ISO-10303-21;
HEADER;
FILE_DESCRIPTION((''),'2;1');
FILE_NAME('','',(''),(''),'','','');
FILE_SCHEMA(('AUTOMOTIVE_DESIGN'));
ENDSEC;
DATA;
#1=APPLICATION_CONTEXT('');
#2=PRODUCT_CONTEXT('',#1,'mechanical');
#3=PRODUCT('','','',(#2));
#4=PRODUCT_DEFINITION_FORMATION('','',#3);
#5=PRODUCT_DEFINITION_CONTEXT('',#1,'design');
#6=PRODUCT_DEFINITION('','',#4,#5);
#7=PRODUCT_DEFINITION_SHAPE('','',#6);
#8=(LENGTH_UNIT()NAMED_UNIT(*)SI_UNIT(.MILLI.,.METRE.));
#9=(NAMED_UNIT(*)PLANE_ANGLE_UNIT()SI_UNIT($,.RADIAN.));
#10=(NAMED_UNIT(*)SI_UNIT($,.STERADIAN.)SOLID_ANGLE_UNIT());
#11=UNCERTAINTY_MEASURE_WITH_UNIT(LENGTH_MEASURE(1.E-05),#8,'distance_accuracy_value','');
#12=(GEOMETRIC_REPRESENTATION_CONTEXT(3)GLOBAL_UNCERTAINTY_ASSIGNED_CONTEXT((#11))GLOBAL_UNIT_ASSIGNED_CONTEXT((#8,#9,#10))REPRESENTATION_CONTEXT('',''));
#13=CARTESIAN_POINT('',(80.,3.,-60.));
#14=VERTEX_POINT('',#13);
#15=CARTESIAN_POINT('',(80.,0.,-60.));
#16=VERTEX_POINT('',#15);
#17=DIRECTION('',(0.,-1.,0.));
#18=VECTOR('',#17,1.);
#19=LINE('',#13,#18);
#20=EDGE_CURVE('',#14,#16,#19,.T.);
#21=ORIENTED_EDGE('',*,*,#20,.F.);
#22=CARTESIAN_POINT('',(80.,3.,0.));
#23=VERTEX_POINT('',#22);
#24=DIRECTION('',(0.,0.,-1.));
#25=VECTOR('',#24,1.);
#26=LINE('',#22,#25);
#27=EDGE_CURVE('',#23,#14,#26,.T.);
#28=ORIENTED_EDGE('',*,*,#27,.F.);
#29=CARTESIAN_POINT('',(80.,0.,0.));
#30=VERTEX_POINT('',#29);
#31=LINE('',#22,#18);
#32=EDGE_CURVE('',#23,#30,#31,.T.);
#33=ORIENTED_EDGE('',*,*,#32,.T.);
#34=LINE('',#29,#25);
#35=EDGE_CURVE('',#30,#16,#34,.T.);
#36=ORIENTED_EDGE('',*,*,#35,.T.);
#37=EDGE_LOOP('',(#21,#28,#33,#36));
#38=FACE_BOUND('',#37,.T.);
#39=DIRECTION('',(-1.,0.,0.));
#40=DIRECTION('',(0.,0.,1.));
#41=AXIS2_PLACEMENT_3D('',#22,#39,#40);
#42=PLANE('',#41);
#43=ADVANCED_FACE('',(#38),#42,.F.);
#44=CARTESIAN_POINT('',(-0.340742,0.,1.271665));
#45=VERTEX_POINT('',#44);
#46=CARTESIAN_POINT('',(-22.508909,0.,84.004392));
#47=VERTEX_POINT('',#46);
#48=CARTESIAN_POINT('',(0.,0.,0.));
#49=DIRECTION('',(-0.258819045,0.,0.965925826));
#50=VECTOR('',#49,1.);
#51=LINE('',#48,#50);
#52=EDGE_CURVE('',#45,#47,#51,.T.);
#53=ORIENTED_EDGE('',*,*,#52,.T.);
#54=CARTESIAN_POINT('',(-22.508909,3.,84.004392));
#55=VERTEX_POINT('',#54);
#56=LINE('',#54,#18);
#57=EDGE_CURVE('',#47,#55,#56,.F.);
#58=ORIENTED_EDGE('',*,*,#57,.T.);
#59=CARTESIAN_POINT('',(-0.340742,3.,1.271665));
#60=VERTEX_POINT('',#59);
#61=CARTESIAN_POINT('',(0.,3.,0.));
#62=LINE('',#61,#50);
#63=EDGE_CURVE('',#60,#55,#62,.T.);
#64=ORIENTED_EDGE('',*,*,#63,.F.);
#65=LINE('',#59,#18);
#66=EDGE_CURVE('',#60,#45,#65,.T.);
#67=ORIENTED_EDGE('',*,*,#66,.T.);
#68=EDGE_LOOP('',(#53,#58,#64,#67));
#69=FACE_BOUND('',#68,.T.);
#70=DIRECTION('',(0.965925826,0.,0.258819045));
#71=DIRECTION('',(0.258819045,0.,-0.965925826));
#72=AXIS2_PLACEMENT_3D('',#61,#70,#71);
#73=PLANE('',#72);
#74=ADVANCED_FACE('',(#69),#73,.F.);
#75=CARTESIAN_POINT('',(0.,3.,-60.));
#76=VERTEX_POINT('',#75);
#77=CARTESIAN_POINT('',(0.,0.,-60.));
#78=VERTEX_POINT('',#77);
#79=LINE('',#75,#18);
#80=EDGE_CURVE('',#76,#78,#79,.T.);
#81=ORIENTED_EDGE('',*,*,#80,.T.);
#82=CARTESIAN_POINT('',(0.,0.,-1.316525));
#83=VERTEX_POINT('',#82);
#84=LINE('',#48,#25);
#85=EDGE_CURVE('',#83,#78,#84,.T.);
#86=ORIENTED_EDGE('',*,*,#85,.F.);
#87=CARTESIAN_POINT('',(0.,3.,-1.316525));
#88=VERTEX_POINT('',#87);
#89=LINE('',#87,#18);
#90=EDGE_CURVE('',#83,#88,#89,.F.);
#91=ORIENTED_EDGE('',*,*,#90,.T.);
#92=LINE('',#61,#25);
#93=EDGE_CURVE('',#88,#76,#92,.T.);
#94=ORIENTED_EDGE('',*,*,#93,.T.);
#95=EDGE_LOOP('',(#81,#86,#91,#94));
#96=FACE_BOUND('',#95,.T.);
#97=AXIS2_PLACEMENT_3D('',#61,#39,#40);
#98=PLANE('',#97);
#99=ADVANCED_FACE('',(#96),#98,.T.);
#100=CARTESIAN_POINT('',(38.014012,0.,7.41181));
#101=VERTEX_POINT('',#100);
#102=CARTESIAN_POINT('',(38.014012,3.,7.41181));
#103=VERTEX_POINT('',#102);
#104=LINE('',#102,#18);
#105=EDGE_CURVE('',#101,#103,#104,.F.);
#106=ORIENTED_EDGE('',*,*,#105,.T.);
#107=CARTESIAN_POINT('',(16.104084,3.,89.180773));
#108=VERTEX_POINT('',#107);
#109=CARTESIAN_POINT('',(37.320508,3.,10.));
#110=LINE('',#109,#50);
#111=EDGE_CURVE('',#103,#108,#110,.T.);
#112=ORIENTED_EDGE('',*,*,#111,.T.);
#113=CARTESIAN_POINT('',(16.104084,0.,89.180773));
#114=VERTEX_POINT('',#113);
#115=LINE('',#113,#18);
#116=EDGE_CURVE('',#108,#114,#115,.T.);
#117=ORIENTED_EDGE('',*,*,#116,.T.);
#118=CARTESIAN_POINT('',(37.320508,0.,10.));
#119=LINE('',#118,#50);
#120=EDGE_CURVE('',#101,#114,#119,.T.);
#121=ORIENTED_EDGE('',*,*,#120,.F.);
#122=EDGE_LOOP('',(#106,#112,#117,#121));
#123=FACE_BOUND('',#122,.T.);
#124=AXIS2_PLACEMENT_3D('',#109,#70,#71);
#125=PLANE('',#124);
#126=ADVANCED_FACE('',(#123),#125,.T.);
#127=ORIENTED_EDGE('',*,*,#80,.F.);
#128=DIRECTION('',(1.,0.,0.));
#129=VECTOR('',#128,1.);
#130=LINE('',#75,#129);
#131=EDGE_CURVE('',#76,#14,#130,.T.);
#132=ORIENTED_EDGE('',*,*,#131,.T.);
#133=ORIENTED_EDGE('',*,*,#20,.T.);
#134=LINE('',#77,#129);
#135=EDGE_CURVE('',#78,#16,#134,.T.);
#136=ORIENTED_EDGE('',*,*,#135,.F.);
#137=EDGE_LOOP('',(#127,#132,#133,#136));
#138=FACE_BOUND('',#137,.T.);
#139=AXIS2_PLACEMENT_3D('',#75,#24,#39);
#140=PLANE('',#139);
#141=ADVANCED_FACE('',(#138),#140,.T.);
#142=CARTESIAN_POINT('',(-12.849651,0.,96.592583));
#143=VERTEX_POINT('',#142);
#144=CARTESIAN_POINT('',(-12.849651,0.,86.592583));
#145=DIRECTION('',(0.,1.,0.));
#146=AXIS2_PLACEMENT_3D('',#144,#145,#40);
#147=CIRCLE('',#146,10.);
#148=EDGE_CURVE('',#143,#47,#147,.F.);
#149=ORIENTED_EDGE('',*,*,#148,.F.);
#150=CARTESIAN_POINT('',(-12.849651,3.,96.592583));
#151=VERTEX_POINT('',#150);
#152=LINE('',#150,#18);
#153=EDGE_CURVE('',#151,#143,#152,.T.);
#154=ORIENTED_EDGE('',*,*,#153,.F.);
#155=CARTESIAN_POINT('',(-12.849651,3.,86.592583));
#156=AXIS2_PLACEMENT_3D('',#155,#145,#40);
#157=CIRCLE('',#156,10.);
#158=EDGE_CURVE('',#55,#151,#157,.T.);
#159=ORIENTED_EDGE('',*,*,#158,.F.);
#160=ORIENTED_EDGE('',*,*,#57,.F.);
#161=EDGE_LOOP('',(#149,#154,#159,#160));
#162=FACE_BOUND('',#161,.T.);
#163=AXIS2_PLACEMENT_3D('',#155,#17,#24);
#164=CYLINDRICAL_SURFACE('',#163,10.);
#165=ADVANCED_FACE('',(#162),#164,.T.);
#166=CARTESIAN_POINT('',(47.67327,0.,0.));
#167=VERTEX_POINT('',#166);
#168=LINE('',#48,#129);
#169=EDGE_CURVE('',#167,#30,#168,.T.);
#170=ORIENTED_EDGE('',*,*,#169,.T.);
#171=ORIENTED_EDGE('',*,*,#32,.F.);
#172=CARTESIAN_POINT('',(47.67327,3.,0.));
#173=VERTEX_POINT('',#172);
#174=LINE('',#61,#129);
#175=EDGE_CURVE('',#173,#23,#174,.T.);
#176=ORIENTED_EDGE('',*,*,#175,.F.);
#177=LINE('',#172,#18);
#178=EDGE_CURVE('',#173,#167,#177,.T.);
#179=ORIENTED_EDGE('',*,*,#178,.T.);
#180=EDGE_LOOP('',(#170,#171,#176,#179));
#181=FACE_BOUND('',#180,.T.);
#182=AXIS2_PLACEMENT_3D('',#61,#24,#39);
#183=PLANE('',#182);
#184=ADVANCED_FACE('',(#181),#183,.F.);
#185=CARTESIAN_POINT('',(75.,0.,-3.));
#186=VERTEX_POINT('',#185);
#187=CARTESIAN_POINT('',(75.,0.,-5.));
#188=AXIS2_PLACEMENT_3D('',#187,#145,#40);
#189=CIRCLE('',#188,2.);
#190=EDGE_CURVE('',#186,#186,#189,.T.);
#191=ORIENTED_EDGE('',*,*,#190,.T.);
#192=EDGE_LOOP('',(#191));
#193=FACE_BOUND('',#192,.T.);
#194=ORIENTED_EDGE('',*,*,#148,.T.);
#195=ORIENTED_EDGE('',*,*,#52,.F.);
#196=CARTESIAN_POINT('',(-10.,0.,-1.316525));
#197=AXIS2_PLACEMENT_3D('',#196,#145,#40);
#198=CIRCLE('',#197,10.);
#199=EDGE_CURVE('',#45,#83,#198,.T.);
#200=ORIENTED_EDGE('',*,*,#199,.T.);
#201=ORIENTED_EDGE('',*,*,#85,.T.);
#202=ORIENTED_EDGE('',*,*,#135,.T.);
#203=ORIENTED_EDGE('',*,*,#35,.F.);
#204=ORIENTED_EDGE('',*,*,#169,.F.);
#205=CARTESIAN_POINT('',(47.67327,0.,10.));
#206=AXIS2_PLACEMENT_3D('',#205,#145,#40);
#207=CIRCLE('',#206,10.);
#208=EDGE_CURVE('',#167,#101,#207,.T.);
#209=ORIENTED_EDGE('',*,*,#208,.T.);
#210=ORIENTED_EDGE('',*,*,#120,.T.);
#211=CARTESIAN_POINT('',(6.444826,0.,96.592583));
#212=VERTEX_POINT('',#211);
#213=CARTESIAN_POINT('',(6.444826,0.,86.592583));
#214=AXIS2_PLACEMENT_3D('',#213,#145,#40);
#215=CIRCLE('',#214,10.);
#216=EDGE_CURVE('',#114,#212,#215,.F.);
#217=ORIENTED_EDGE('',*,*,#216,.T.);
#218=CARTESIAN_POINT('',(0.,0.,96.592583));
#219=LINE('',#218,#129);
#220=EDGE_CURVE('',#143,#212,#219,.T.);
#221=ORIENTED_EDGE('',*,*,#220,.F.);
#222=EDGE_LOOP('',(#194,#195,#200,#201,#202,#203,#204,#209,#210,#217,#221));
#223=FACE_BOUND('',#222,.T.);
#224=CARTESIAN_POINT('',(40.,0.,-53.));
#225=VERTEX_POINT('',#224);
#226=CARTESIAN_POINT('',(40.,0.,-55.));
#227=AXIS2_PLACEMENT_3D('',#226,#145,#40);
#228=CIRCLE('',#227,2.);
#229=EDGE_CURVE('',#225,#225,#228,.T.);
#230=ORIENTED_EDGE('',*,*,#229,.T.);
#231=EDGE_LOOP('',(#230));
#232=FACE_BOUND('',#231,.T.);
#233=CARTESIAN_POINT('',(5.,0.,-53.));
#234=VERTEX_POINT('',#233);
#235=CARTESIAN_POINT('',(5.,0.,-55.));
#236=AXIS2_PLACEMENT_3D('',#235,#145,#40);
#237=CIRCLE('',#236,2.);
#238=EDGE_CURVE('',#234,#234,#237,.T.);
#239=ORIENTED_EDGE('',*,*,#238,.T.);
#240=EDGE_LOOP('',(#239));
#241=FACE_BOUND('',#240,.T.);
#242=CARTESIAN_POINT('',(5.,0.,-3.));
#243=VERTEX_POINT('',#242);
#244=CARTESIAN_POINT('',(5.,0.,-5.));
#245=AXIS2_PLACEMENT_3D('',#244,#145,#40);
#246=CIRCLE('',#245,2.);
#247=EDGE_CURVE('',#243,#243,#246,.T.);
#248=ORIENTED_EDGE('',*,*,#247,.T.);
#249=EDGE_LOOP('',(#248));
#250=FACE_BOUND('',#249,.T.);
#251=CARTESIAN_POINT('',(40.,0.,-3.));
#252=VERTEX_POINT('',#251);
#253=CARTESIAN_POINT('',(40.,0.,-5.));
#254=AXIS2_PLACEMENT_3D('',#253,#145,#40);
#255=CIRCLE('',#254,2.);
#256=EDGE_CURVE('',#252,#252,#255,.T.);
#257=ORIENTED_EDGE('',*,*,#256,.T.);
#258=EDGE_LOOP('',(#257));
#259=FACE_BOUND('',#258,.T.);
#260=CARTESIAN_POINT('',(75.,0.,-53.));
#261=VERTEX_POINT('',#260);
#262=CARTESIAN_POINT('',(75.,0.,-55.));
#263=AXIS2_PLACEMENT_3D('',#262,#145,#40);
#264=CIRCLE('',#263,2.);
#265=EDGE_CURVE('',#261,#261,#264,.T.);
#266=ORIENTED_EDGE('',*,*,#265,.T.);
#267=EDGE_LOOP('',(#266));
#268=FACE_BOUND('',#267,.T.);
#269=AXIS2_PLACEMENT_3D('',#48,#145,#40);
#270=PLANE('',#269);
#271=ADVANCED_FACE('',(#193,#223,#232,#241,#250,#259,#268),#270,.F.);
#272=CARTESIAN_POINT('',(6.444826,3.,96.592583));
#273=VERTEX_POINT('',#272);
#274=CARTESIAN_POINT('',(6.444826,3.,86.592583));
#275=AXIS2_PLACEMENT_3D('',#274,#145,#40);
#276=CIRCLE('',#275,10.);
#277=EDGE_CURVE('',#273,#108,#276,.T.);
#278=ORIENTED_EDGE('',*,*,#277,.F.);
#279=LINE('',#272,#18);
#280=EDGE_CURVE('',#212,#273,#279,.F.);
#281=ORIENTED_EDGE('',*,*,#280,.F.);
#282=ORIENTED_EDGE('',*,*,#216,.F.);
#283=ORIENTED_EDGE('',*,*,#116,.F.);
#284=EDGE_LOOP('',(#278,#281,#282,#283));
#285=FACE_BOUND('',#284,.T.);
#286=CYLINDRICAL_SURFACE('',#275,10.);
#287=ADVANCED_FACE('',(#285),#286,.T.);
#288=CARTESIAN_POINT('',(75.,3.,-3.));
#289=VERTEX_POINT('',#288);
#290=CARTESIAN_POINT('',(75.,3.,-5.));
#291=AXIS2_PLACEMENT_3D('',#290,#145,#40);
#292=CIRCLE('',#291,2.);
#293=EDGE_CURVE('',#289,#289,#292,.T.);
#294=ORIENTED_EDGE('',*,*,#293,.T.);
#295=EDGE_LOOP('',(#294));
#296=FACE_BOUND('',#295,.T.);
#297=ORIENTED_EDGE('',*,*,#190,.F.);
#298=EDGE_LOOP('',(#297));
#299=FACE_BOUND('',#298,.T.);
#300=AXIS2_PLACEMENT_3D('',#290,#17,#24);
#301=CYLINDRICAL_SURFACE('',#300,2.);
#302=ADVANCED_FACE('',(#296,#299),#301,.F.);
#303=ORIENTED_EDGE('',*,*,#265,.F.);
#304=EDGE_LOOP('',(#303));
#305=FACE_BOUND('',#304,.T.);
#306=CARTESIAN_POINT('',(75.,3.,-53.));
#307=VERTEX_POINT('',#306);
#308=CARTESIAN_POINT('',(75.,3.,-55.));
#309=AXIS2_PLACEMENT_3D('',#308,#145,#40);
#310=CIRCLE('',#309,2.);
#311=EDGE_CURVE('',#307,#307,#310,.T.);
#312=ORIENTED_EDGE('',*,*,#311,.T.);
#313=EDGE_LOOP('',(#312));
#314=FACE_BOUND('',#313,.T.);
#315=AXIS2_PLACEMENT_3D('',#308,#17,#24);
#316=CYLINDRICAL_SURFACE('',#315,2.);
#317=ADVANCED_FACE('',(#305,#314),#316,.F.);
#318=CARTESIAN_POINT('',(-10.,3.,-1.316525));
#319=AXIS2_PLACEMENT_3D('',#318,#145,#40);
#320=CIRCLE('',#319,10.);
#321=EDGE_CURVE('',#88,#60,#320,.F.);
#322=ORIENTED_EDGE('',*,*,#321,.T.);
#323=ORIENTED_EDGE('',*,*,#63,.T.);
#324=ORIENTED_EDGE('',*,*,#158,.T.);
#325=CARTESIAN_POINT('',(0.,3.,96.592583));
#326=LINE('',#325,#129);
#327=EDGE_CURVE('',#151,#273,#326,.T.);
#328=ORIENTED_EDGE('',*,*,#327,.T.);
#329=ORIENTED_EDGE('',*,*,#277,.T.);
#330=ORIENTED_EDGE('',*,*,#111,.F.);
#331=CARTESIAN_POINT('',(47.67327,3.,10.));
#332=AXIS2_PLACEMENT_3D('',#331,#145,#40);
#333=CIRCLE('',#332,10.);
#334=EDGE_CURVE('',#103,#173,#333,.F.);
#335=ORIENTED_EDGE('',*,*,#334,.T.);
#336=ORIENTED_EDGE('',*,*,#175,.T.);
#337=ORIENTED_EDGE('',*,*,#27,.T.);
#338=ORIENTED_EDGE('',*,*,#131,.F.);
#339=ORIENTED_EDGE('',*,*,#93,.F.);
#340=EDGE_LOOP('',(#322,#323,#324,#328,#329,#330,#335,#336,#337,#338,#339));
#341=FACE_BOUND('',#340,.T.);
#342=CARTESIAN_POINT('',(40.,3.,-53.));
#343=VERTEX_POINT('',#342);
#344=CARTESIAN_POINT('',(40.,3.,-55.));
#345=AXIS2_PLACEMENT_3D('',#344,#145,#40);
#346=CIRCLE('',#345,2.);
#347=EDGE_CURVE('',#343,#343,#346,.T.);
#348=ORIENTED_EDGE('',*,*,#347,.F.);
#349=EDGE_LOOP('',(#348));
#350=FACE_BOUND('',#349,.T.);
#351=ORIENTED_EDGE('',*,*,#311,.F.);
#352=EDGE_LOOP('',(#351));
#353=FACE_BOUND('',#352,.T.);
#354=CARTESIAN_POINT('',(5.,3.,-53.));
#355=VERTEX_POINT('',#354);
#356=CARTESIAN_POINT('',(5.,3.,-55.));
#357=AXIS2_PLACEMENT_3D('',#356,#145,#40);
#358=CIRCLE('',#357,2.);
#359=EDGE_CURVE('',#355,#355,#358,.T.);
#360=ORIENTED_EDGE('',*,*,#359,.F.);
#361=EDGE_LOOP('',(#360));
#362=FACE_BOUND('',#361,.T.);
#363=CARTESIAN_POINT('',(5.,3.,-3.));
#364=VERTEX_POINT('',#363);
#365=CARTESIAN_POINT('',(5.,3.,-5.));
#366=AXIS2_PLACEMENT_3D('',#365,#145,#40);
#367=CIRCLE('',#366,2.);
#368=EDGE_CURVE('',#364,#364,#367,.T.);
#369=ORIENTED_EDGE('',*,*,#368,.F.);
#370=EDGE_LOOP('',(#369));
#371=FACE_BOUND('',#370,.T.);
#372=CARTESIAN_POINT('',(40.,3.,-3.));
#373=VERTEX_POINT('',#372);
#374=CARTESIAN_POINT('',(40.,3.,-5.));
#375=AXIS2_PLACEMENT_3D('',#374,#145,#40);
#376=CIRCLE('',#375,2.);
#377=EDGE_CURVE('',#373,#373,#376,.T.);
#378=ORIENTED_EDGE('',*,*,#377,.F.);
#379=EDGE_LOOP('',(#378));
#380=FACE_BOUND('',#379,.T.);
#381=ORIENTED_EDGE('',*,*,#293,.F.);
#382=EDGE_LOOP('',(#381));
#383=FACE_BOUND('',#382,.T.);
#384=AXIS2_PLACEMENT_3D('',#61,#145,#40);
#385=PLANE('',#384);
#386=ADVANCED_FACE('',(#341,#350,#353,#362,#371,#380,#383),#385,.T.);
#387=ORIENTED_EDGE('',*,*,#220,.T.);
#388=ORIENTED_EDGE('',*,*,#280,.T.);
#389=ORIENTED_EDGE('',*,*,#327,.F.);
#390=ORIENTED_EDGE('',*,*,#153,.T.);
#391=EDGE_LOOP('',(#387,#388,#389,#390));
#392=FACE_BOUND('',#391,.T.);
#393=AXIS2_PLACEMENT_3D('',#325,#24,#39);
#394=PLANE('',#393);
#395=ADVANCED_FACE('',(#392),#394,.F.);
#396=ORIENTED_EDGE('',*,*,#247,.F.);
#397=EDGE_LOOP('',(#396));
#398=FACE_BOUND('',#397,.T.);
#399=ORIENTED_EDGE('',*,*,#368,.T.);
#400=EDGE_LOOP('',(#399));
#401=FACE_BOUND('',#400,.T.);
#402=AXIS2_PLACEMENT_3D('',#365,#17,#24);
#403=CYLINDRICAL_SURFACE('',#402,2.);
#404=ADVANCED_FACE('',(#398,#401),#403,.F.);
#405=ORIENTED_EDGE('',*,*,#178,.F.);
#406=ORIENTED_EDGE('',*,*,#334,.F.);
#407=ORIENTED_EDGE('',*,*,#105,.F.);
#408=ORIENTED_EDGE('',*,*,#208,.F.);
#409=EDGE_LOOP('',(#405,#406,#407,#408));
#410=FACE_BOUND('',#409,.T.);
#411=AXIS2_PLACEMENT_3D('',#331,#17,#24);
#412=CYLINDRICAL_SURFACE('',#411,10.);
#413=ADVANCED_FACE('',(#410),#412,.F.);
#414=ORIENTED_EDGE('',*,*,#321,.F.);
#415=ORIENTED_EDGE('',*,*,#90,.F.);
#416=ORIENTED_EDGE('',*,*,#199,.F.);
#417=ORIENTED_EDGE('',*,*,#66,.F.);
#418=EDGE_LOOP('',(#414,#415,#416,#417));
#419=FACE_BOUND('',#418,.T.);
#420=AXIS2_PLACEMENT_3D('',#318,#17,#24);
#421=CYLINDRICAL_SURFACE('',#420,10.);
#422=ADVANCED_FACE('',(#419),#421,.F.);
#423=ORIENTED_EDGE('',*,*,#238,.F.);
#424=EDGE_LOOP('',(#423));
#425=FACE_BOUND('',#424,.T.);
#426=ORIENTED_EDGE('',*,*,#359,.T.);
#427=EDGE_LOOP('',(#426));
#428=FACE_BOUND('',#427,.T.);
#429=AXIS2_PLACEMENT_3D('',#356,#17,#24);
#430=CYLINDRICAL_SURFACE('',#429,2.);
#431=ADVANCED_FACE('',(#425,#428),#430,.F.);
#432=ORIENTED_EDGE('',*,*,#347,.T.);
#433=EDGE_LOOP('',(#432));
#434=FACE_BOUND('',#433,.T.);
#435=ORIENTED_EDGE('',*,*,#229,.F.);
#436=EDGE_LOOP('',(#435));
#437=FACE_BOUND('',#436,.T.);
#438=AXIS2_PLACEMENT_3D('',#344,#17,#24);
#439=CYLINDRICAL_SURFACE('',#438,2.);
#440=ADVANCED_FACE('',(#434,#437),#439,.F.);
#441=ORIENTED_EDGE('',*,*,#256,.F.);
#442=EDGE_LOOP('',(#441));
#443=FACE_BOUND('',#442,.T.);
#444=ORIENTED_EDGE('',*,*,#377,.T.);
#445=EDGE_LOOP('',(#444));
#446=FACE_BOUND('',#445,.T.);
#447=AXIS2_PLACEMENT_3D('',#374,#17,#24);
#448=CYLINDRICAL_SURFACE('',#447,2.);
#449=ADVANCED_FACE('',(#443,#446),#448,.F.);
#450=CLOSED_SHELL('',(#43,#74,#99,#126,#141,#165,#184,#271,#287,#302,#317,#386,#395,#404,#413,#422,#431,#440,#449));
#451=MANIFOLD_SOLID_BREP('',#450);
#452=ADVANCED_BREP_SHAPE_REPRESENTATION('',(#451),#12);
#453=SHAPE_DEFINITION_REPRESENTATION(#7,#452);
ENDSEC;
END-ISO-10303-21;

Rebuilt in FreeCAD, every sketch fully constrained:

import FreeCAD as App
import Part
import Sketcher

V = App.Vector
Q = App.Units.Quantity


def edges_at(feature, points):
    """Names of the edges that pass closest to the given points."""
    edges = feature.Shape.Edges
    near = lambda p: min(range(len(edges)), key=lambda i: edges[i].distToShape(Part.Vertex(*p))[0])
    return sorted({f"Edge{near(p) + 1}" for p in points})

doc = App.newDocument("Part")
body = doc.addObject("PartDesign::Body", "Body")

# Sketch on XZ plane
sketch1 = body.newObject("Sketcher::SketchObject", "Sketch")
sketch1.AttachmentSupport = (doc.getObject("XZ_Plane"), [""])
sketch1.MapMode = "FlatFace"
sketch1.addGeometry(Part.LineSegment(V(0, -60, 0), V(0, 0, 0)), False)
sketch1.addGeometry(Part.LineSegment(V(0, 0, 0), V(-25.9, 96.6, 0)), False)
sketch1.addGeometry(Part.LineSegment(V(-25.9, 96.6, 0), V(14.1, 96.6, 0)), False)
sketch1.addGeometry(Part.LineSegment(V(14.1, 96.6, 0), V(40, 0, 0)), False)
sketch1.addGeometry(Part.LineSegment(V(40, 0, 0), V(80, 0, 0)), False)
sketch1.addGeometry(Part.LineSegment(V(80, 0, 0), V(80, -60, 0)), False)
sketch1.addGeometry(Part.LineSegment(V(80, -60, 0), V(0, -60, 0)), False)
sketch1.addGeometry(Part.Circle(V(5, -5, 0), V(0, 0, 1), 2), False)
sketch1.addGeometry(Part.Circle(V(40, -5, 0), V(0, 0, 1), 2), False)
sketch1.addGeometry(Part.Circle(V(75, -5, 0), V(0, 0, 1), 2), False)
sketch1.addGeometry(Part.Circle(V(5, -55, 0), V(0, 0, 1), 2), False)
sketch1.addGeometry(Part.Circle(V(40, -55, 0), V(0, 0, 1), 2), False)
sketch1.addGeometry(Part.Circle(V(75, -55, 0), V(0, 0, 1), 2), False)
sketch1.addConstraint(Sketcher.Constraint("Coincident", 0, 2, 1, 1))
sketch1.addConstraint(Sketcher.Constraint("Coincident", 1, 2, 2, 1))
sketch1.addConstraint(Sketcher.Constraint("Coincident", 2, 2, 3, 1))
sketch1.addConstraint(Sketcher.Constraint("Coincident", 3, 2, 4, 1))
sketch1.addConstraint(Sketcher.Constraint("Coincident", 4, 2, 5, 1))
sketch1.addConstraint(Sketcher.Constraint("Coincident", 5, 2, 6, 1))
sketch1.addConstraint(Sketcher.Constraint("Coincident", 6, 2, 0, 1))
sketch1.addConstraint(Sketcher.Constraint("Vertical", 0))
sketch1.addConstraint(Sketcher.Constraint("Horizontal", 2))
sketch1.addConstraint(Sketcher.Constraint("Horizontal", 4))
sketch1.addConstraint(Sketcher.Constraint("Vertical", 5))
sketch1.addConstraint(Sketcher.Constraint("Horizontal", 6))
sketch1.addConstraint(Sketcher.Constraint("Coincident", 0, 2, -1, 1))
sketch1.addConstraint(Sketcher.Constraint("Equal", 7, 8))
sketch1.addConstraint(Sketcher.Constraint("Equal", 8, 9))
sketch1.addConstraint(Sketcher.Constraint("Equal", 9, 10))
sketch1.addConstraint(Sketcher.Constraint("Equal", 10, 11))
sketch1.addConstraint(Sketcher.Constraint("Equal", 11, 12))
sketch1.addConstraint(Sketcher.Constraint("PointOnObject", 3, 2, -1))
sketch1.addConstraint(Sketcher.Constraint("Parallel", 1, 3))
sketch1.addConstraint(Sketcher.Constraint("Horizontal", 7, 3, 8, 3))
sketch1.addConstraint(Sketcher.Constraint("Horizontal", 8, 3, 9, 3))
sketch1.addConstraint(Sketcher.Constraint("Horizontal", 10, 3, 11, 3))
sketch1.addConstraint(Sketcher.Constraint("Horizontal", 11, 3, 12, 3))
sketch1.addConstraint(Sketcher.Constraint("Vertical", 7, 3, 10, 3))
sketch1.addConstraint(Sketcher.Constraint("Vertical", 8, 3, 11, 3))
sketch1.addConstraint(Sketcher.Constraint("Vertical", 9, 3, 12, 3))
sketch1.addConstraint(Sketcher.Constraint("Vertical", 11, 3, 3, 2))
sketch1.addConstraint(Sketcher.Constraint("Equal", 2, 4))
sketch1.addConstraint(Sketcher.Constraint("Diameter", 7, Q("4 mm")))
sketch1.addConstraint(Sketcher.Constraint("DistanceX", 2, 1, 2, 2, Q("40 mm")))
sketch1.addConstraint(Sketcher.Constraint("DistanceY", 0, 1, 0, 2, Q("60 mm")))
sketch1.addConstraint(Sketcher.Constraint("Angle", 1, Q("105 deg")))
sketch1.addConstraint(Sketcher.Constraint("Distance", 1, Q("100 mm")))
sketch1.addConstraint(Sketcher.Constraint("DistanceX", -1, 1, 7, 3, Q("5 mm")))
sketch1.addConstraint(Sketcher.Constraint("DistanceY", 7, 3, -1, 1, Q("5 mm")))
sketch1.addConstraint(Sketcher.Constraint("DistanceX", -1, 1, 9, 3, Q("75 mm")))
sketch1.addConstraint(Sketcher.Constraint("DistanceY", 10, 3, -1, 1, Q("55 mm")))
pad1 = body.newObject("PartDesign::Pad", "Pad")
pad1.Profile = sketch1
pad1.Length = 3
pad1.Reversed = True
doc.recompute()

fillet = body.newObject("PartDesign::Fillet", "Fillet")
fillet.Base = (pad1, edges_at(pad1, [
    (40, 1.5, 0),
    (14.118, 1.5, 96.593),
    (-25.882, 1.5, 96.593),
    (0, 1.5, 0),
]))
fillet.Radius = 10

doc.recompute()
